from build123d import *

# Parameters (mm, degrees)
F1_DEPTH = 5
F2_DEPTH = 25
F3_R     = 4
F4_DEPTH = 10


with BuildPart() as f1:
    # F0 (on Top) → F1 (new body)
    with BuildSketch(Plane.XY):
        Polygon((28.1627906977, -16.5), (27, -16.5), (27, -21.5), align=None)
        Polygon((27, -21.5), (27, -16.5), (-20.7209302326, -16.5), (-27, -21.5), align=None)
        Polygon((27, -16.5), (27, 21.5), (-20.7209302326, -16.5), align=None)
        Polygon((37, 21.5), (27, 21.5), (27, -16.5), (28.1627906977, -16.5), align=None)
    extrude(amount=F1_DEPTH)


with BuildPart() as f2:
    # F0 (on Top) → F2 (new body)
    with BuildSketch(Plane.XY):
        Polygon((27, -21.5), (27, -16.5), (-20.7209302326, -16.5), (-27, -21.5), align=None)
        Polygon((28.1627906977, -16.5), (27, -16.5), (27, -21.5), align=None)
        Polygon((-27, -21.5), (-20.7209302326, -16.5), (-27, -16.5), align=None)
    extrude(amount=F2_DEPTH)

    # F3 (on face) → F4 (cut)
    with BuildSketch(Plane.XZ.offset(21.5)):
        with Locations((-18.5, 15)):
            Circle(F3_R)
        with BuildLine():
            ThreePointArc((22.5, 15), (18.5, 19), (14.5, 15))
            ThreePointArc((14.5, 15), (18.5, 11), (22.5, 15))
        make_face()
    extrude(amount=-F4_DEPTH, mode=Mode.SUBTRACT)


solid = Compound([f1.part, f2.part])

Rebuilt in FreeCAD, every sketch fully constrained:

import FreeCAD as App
import Part
import Sketcher
from FreeCAD import Vector

doc = App.newDocument("Part")
params = doc.addObject("Spreadsheet::Sheet", "Params")
for row, (alias, value) in enumerate([
    ("sketch1_width", "54 mm"),
    ("sketch1_width2", "10 mm"),
    ("pad1_length", "5 mm"),
    ("sketch2_width", "54 mm"),
    ("sketch2_height", "5 mm"),
    ("pad2_length", "25 mm"),
    ("sketch3_diameter", "8 mm"),
    ("pocket1_length", "10 mm"),
], start=1):
    params.set(f"A{row}", alias)
    params.set(f"B{row}", "=" + value)
    params.setAlias(f"B{row}", alias)

body = doc.addObject("PartDesign::Body", "Body")

# Sketch on XY plane
sketch1 = body.newObject("Sketcher::SketchObject", "Sketch")
sketch1.AttachmentSupport = (doc.getObject("XY_Plane"), [""])
sketch1.MapMode = "FlatFace"
sketch1.addGeometry([
    Part.LineSegment(Vector(27, 21.5, 0), Vector(-20.72093, -16.5, 0)),  # 0
    Part.LineSegment(Vector(-20.72093, -16.5, 0), Vector(-27, -21.5, 0)),  # 1
    Part.LineSegment(Vector(-27, -21.5, 0), Vector(27, -21.5, 0)),  # 2
    Part.LineSegment(Vector(27, -21.5, 0), Vector(28.162791, -16.5, 0)),  # 3
    Part.LineSegment(Vector(28.162791, -16.5, 0), Vector(37, 21.5, 0)),  # 4
    Part.LineSegment(Vector(37, 21.5, 0), Vector(27, 21.5, 0)),  # 5
], False)
sketch1.addConstraint([
    Sketcher.Constraint("Coincident", 0, 2, 1, 1),
    Sketcher.Constraint("Coincident", 1, 2, 2, 1),
    Sketcher.Constraint("Coincident", 2, 2, 3, 1),
    Sketcher.Constraint("Coincident", 3, 2, 4, 1),
    Sketcher.Constraint("Coincident", 4, 2, 5, 1),
    Sketcher.Constraint("Coincident", 5, 2, 0, 1),
    Sketcher.Constraint("Horizontal", 2),
    Sketcher.Constraint("Horizontal", 5),
    Sketcher.Constraint("Symmetric", 1, 2, 5, 2, -1, 1),
    Sketcher.Constraint("Parallel", 0, 1),
    Sketcher.Constraint("Parallel", 3, 4),
    Sketcher.Constraint("Horizontal", 0, 2, 3, 2),
    Sketcher.Constraint("Vertical", 2, 2, 5, 2),
    Sketcher.Constraint("DistanceX", 2, 1, 2, 2, 54.0),
    Sketcher.Constraint("DistanceX", 5, 2, 5, 1, 10.0),
    Sketcher.Constraint("DistanceY", 1, 2, 0, 2, 5.0),
    Sketcher.Constraint("DistanceY", 3, 2, 4, 2, 38.0),
])
sketch1.setExpression("Constraints[13]", "Params.sketch1_width")
sketch1.setExpression("Constraints[14]", "Params.sketch1_width2")
pad1 = body.newObject("PartDesign::Pad", "Pad")
pad1.Profile = sketch1
pad1.setExpression("Length", "Params.pad1_length")
body2 = doc.addObject("PartDesign::Body", "Body001")

# Sketch on XY plane
sketch2 = body2.newObject("Sketcher::SketchObject", "Sketch001")
sketch2.AttachmentSupport = (doc.getObject("XY_Plane001"), [""])
sketch2.MapMode = "FlatFace"
sketch2.addGeometry([
    Part.LineSegment(Vector(-27, -21.5, 0), Vector(27, -21.5, 0)),
    Part.LineSegment(Vector(27, -21.5, 0), Vector(28.162791, -16.5, 0)),
    Part.LineSegment(Vector(28.162791, -16.5, 0), Vector(-27, -16.5, 0)),
    Part.LineSegment(Vector(-27, -16.5, 0), Vector(-27, -21.5, 0)),
], False)
sketch2.addConstraint([
    Sketcher.Constraint("Coincident", 0, 2, 1, 1),
    Sketcher.Constraint("Coincident", 1, 2, 2, 1),
    Sketcher.Constraint("Coincident", 2, 2, 3, 1),
    Sketcher.Constraint("Coincident", 3, 2, 0, 1),
    Sketcher.Constraint("Horizontal", 0),
    Sketcher.Constraint("Horizontal", 2),
    Sketcher.Constraint("Vertical", 3),
    Sketcher.Constraint("DistanceX", 0, 1, 0, 2, 54.0),
    Sketcher.Constraint("DistanceY", 3, 2, 3, 1, 5.0),
    Sketcher.Constraint("DistanceX", -1, 1, 0, 2, 27.0),
    Sketcher.Constraint("DistanceY", 0, 2, -1, 1, 21.5),
    Sketcher.Constraint("DistanceX", 2, 2, 2, 1, 55.162791),
])
sketch2.setExpression("Constraints[7]", "Params.sketch2_width")
sketch2.setExpression("Constraints[8]", "Params.sketch2_height")
pad2 = body2.newObject("PartDesign::Pad", "Pad001")
pad2.Profile = sketch2
pad2.setExpression("Length", "Params.pad2_length")

# Sketch on XZ plane
sketch3 = body2.newObject("Sketcher::SketchObject", "Sketch002")
sketch3.AttachmentSupport = (doc.getObject("XZ_Plane001"), [""])
sketch3.MapMode = "FlatFace"
sketch3.AttachmentOffset = App.Placement(Vector(0, 0, 21.5), App.Rotation())
sketch3.addGeometry([
    Part.Circle(Vector(-18.5, 15, 0), Vector(0, 0, 1), 4),
    Part.Circle(Vector(18.5, 15, 0), Vector(0, 0, 1), 4),
], False)
sketch3.addConstraint([
    Sketcher.Constraint("Equal", 0, 1),
    Sketcher.Constraint("Symmetric", 0, 3, 1, 3, -2),
    Sketcher.Constraint("Diameter", 0, 8.0),
    Sketcher.Constraint("DistanceY", -1, 1, 0, 3, 15.0),
    Sketcher.Constraint("DistanceX", 0, 3, 1, 3, 37.0),
])
sketch3.setExpression("Constraints[2]", "Params.sketch3_diameter")
pocket1 = body2.newObject("PartDesign::Pocket", "Pocket")
pocket1.Profile = sketch3
pocket1.setExpression("Length", "Params.pocket1_length")

doc.recompute()
